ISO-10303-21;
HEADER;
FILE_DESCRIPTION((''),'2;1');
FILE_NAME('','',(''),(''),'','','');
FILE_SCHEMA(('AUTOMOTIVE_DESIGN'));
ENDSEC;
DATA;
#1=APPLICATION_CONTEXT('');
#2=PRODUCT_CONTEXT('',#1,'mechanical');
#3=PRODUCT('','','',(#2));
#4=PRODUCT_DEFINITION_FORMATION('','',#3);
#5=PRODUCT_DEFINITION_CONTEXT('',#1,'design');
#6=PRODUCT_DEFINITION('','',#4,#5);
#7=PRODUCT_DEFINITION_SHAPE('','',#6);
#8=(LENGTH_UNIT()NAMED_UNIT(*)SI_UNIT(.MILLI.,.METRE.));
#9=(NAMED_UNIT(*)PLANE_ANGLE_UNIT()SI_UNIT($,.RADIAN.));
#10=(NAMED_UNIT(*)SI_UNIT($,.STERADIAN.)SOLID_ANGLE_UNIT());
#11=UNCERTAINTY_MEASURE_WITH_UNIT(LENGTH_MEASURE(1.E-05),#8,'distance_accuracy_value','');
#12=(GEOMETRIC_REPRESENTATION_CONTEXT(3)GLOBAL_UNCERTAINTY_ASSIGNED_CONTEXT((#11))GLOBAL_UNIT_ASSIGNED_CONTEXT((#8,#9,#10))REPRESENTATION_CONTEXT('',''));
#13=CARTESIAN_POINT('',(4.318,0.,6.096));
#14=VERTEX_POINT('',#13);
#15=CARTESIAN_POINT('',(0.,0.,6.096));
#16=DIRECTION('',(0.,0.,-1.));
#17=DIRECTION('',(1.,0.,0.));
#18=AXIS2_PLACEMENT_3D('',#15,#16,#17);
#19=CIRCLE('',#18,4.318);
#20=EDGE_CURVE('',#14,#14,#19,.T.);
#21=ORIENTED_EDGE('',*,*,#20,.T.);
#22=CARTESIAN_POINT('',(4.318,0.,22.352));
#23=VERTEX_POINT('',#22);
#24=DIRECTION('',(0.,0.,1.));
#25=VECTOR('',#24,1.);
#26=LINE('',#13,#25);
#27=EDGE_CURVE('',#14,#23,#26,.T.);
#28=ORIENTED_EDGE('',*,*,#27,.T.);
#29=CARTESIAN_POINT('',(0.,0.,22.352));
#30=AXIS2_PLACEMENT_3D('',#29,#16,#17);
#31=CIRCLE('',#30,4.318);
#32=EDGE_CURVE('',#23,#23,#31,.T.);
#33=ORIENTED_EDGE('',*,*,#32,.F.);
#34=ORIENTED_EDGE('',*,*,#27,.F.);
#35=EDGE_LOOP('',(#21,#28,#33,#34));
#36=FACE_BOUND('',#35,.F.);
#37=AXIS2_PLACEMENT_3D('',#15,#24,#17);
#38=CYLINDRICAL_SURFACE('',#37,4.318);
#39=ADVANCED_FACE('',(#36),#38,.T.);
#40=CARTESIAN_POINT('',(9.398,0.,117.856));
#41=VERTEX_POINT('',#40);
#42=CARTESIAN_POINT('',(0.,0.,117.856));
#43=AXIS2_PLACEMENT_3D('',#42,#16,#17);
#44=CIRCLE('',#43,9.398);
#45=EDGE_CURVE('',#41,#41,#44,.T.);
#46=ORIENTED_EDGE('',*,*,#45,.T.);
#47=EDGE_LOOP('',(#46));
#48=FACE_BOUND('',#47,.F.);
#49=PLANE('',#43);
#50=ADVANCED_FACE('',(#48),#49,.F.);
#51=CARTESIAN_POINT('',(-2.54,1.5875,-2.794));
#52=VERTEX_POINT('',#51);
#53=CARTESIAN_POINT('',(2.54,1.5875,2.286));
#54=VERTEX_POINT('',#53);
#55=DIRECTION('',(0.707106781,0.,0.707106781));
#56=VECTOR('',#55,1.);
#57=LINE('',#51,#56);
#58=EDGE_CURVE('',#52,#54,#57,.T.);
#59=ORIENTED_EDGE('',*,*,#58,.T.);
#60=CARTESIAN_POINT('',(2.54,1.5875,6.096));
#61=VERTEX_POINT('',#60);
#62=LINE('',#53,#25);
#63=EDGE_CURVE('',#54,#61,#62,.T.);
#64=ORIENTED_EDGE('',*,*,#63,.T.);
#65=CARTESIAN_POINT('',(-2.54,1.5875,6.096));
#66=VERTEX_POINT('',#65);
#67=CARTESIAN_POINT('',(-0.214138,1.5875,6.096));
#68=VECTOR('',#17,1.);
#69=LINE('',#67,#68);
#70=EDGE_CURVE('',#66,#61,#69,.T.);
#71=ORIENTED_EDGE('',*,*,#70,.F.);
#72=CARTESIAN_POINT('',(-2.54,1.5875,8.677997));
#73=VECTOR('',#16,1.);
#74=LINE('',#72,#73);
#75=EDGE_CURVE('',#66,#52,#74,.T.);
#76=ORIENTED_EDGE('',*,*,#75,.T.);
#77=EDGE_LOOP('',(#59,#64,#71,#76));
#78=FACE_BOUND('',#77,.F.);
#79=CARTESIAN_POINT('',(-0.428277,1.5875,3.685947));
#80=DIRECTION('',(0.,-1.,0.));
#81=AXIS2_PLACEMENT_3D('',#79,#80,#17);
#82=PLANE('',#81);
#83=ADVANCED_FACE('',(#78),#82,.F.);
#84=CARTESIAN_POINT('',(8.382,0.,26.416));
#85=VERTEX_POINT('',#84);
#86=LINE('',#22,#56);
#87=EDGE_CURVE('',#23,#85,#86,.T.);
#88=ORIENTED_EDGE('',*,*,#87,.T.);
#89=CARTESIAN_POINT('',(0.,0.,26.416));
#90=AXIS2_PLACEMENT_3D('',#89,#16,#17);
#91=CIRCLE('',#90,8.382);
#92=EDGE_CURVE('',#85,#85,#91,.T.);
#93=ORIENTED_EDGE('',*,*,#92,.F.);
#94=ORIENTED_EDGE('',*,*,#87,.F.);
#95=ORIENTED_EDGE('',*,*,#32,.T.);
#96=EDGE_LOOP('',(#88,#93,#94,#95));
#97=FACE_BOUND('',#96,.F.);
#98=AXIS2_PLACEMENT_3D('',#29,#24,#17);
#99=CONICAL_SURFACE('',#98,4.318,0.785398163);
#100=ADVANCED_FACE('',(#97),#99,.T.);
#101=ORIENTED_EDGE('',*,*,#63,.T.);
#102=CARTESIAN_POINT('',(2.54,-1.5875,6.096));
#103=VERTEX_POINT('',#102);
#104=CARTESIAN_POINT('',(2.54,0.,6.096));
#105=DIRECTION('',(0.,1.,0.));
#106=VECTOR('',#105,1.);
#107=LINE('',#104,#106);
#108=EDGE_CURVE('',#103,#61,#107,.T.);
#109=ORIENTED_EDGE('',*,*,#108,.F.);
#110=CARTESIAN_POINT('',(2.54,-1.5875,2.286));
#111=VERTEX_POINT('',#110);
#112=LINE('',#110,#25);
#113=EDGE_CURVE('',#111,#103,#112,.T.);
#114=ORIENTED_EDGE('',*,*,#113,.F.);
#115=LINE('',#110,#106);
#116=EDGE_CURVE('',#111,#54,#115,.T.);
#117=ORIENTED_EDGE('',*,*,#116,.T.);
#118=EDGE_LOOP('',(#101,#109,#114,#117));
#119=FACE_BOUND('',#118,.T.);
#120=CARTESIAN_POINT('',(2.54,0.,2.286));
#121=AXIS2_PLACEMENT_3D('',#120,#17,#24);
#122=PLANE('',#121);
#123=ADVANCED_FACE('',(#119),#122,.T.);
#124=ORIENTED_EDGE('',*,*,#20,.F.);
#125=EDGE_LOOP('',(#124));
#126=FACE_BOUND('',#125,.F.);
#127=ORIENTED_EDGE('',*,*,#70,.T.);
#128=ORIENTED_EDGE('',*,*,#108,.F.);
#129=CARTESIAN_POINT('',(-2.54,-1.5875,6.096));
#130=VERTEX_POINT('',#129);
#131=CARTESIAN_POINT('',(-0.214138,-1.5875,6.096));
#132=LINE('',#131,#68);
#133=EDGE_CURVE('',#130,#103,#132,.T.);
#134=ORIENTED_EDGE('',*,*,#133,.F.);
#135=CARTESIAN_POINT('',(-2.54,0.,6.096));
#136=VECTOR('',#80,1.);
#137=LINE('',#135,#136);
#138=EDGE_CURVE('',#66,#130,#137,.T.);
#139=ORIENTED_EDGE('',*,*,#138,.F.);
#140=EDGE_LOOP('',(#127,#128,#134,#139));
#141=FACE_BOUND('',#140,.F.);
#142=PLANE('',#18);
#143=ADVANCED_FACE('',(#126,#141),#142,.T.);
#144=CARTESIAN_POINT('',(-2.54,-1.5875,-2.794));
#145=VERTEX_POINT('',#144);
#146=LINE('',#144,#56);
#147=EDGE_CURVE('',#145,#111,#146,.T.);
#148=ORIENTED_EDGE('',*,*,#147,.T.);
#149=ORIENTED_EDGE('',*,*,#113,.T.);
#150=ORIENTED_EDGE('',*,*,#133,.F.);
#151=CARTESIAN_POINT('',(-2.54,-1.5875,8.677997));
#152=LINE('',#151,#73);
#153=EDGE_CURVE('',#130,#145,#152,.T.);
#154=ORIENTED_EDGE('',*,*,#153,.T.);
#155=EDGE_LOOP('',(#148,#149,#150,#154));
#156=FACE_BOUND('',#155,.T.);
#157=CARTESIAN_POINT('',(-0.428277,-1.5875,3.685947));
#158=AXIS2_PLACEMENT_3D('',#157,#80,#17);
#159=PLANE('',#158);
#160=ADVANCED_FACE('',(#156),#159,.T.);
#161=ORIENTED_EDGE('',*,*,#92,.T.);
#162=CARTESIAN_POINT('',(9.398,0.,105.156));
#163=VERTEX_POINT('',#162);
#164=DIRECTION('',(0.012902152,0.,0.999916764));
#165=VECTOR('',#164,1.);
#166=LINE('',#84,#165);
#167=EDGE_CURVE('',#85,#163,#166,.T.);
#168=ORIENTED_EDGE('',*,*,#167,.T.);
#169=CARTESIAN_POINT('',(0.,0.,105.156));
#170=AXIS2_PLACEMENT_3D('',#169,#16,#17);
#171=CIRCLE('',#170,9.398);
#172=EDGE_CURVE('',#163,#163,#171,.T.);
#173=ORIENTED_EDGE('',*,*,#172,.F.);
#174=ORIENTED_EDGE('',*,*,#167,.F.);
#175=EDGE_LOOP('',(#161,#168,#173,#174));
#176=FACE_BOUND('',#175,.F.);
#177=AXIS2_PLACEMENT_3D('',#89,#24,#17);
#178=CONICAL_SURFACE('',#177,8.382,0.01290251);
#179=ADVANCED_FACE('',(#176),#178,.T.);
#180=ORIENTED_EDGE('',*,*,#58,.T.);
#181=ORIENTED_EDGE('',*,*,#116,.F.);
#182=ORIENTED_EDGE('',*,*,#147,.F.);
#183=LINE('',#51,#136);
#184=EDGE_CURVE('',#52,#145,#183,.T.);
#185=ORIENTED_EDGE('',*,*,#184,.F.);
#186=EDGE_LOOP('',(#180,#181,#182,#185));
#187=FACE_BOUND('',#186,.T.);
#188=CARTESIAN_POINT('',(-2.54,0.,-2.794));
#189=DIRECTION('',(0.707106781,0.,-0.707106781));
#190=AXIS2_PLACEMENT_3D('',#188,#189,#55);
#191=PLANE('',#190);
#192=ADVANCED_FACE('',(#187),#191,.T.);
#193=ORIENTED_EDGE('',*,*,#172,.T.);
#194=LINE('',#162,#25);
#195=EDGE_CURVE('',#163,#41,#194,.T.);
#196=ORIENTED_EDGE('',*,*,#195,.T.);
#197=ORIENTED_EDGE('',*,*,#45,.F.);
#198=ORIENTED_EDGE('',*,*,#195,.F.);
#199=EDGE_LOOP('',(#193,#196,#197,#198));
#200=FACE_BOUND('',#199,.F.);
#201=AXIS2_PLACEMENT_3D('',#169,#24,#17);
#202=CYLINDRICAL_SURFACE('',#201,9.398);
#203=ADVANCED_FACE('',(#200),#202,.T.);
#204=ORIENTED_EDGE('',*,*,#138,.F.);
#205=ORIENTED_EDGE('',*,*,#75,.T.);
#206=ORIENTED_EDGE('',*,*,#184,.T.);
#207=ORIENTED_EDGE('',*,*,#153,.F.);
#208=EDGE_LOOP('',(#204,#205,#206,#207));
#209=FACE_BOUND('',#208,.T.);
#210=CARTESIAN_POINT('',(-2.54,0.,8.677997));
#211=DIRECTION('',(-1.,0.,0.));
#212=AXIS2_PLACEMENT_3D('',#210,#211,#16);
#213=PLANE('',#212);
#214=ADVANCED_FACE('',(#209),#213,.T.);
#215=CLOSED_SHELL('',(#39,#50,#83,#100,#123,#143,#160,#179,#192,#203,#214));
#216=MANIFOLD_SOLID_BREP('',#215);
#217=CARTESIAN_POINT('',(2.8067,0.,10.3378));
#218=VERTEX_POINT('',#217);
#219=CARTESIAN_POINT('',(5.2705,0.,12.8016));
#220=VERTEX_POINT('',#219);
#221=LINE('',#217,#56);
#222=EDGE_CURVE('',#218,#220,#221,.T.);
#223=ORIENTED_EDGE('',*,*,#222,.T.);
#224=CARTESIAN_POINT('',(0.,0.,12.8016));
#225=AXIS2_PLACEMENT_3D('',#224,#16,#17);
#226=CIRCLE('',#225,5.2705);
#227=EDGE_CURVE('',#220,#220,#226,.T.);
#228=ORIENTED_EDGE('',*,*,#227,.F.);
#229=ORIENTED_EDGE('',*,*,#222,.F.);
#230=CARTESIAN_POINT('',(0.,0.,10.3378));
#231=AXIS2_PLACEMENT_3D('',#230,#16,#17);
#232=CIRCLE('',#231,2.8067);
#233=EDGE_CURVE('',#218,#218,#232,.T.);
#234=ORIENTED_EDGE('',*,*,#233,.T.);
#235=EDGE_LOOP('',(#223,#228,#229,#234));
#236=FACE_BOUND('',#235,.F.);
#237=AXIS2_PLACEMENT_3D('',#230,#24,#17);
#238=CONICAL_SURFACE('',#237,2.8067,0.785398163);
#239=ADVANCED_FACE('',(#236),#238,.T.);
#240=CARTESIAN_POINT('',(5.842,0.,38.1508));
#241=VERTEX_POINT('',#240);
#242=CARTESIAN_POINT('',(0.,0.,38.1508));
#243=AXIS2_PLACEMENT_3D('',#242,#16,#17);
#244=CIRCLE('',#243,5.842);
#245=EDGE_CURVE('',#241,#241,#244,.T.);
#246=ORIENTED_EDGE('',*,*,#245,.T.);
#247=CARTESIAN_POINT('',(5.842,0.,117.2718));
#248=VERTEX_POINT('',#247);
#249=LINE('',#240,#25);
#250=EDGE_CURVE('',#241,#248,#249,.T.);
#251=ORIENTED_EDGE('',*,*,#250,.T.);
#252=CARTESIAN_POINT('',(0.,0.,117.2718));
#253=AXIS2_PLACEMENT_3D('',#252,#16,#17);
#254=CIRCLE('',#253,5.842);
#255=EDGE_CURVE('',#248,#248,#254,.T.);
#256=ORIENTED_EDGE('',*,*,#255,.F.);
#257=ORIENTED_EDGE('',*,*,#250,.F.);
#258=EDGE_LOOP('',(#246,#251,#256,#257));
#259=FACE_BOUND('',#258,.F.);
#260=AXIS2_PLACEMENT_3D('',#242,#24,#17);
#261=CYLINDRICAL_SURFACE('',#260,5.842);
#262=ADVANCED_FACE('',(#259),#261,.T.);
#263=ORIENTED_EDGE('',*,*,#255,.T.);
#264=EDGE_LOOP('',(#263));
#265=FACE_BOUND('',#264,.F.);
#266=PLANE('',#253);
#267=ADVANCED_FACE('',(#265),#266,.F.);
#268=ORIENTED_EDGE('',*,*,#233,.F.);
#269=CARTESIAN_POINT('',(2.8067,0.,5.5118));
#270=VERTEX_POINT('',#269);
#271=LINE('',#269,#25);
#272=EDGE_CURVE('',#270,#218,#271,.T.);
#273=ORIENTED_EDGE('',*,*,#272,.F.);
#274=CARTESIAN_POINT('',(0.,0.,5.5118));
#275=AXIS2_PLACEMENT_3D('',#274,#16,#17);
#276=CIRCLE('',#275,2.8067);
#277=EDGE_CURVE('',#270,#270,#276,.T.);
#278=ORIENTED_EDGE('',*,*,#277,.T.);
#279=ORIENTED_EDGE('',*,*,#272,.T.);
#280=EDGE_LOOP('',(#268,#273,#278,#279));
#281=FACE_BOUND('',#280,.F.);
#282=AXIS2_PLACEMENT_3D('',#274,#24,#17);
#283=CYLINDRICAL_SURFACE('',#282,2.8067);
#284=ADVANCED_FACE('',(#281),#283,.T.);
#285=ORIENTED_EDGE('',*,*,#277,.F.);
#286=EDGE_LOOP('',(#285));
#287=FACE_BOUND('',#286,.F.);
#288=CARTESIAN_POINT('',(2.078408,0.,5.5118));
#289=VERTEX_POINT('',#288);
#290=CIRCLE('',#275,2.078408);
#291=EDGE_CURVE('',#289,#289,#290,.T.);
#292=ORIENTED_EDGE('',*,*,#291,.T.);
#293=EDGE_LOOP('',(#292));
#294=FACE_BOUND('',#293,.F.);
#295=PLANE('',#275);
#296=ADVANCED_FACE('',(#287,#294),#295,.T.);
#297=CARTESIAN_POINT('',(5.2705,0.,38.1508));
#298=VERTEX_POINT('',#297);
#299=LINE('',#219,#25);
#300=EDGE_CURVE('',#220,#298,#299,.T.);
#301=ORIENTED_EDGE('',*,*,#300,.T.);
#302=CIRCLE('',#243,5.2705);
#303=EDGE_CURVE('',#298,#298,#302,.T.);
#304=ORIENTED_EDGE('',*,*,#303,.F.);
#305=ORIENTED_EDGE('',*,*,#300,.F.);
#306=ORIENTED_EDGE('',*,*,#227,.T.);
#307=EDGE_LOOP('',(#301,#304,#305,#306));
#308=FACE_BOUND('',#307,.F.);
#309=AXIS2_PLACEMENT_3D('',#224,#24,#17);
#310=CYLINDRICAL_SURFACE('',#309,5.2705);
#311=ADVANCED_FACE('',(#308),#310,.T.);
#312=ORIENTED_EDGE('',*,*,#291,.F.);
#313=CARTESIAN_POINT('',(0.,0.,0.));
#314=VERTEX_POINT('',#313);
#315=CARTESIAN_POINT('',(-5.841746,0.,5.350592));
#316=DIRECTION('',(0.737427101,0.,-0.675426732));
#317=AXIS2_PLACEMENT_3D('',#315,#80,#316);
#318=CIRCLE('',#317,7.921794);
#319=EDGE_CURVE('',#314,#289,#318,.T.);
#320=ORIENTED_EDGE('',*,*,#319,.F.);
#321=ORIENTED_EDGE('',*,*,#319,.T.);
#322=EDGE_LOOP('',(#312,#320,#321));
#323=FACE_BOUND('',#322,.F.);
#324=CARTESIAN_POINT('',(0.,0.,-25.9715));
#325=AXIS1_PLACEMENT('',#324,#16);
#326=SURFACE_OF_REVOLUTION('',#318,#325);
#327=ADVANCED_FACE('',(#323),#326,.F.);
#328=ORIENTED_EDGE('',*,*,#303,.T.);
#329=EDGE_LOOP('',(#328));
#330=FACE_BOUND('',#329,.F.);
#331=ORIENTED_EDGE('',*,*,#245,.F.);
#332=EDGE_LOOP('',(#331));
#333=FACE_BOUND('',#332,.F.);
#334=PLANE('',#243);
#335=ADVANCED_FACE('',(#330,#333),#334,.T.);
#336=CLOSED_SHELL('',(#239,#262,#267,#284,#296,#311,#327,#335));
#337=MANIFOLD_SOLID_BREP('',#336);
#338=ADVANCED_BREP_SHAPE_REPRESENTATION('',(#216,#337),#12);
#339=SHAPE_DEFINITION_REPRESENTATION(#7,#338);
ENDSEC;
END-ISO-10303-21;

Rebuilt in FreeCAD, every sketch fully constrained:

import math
import FreeCAD as App
import Part
import Sketcher
from FreeCAD import Vector
Q = App.Units.Quantity


def add_polygon(sketch, points):
    """Adds a closed chain of lines whose ends are joined by coincident constraints."""
    first, n = sketch.GeometryCount, len(points)
    for a, b in zip(points, points[1:] + points[:1]):
        sketch.addGeometry(Part.LineSegment(App.Vector(*a, 0), App.Vector(*b, 0)), False)
    for i in range(n):
        sketch.addConstraint(Sketcher.Constraint("Coincident", first + i, 2, first + (i + 1) % n, 1))

doc = App.newDocument("Part")
body = doc.addObject("PartDesign::Body", "Body")

# Sketch on XZ plane
sketch1 = doc.addObject("Sketcher::SketchObject", "Sketch")
body.addObject(sketch1)
sketch1.AttachmentSupport = (doc.XZ_Plane, [""])
sketch1.MapMode = "FlatFace"
add_polygon(sketch1, [(0, 117.9), (0, 6.1), (4.3, 6.1), (4.3, 22.4), (8.4, 26.4), (9.4, 105.2), (9.4, 117.9)])  # lines 0-6
sketch1.addConstraint(Sketcher.Constraint("Vertical", 0))
sketch1.addConstraint(Sketcher.Constraint("Horizontal", 1))
sketch1.addConstraint(Sketcher.Constraint("Vertical", 2))
sketch1.addConstraint(Sketcher.Constraint("Vertical", 5))
sketch1.addConstraint(Sketcher.Constraint("Horizontal", 6))
sketch1.addConstraint(Sketcher.Constraint("PointOnObject", 0, 2, -2))
sketch1.addConstraint(Sketcher.Constraint("DistanceY", 0, 2, 0, 1, Q("4.4 in")))
sketch1.addConstraint(Sketcher.Constraint("DistanceY", 5, 1, 5, 2, Q("0.5 in")))
sketch1.addConstraint(Sketcher.Constraint("Angle", 3, Q("45 deg")))
sketch1.addConstraint(Sketcher.Constraint("DistanceX", 1, 1, 1, 2, Q("0.17 in")))
sketch1.addConstraint(Sketcher.Constraint("DistanceX", 6, 2, 6, 1, Q("0.37 in")))
sketch1.addConstraint(Sketcher.Constraint("DistanceY", 2, 1, 2, 2, Q("0.64 in")))
sketch1.addConstraint(Sketcher.Constraint("DistanceY", 1, 2, 3, 2, Q("0.8 in")))
sketch1.addConstraint(Sketcher.Constraint("DistanceY", -1, 1, 0, 2, Q("0.24 in")))
revolution = doc.addObject("PartDesign::Revolution", "Revolution")
body.addObject(revolution)
revolution.Profile = sketch1
revolution.ReferenceAxis = (sketch1, ["V_Axis"])
revolution.Angle = 360

# Sketch on XZ plane
sketch2 = doc.addObject("Sketcher::SketchObject", "Sketch001")
body.addObject(sketch2)
sketch2.AttachmentSupport = (doc.XZ_Plane, [""])
sketch2.MapMode = "FlatFace"
add_polygon(sketch2, [(3, 9), (-3, 9), (-3, -3), (3, 2)])  # lines 0-3
sketch2.addConstraint(Sketcher.Constraint("Horizontal", 0))
sketch2.addConstraint(Sketcher.Constraint("Vertical", 1))
sketch2.addConstraint(Sketcher.Constraint("Vertical", 3))
sketch2.addConstraint(Sketcher.Constraint("DistanceX", 0, 2, 0, 1, Q("0.2 in")))
sketch2.addConstraint(Sketcher.Constraint("Angle", 2, Q("45 deg")))
sketch2.addConstraint(Sketcher.Constraint("DistanceX", 0, 2, -1, 1, Q("0.1 in")))
sketch2.addConstraint(Sketcher.Constraint("DistanceY", 1, 2, -1, 1, Q("0.11 in")))
sketch2.addConstraint(Sketcher.Constraint("DistanceY", 1, 2, 1, 1, Q("11.471997 mm")))
pad1 = doc.addObject("PartDesign::Pad", "Pad")
body.addObject(pad1)
pad1.Profile = sketch2
pad1.Length = Q("0.125 in")
pad1.Midplane = True
body2 = doc.addObject("PartDesign::Body", "Body001")

# Sketch on XZ plane
sketch3 = doc.addObject("Sketcher::SketchObject", "Sketch002")
body2.addObject(sketch3)
sketch3.AttachmentSupport = (doc.getObject("XZ_Plane001"), [""])
sketch3.MapMode = "FlatFace"
sketch3.addGeometry(Part.LineSegment(Vector(0, 117.3, 0), Vector(0, 0, 0)), False)
sketch3.addGeometry(Part.ArcOfCircle(Part.Circle(Vector(-5.8, 5.4, 0), Vector(0, 0, 1), 7.9), math.radians(-42), math.radians(1)), False)
sketch3.addGeometry(Part.LineSegment(Vector(2.1, 5.5, 0), Vector(2.8, 5.5, 0)), False)
sketch3.addGeometry(Part.LineSegment(Vector(2.8, 5.5, 0), Vector(2.8, 10.3, 0)), False)
sketch3.addGeometry(Part.LineSegment(Vector(2.8, 10.3, 0), Vector(5.3, 12.8, 0)), False)
sketch3.addGeometry(Part.LineSegment(Vector(5.3, 12.8, 0), Vector(5.3, 38.2, 0)), False)
sketch3.addGeometry(Part.LineSegment(Vector(5.3, 38.2, 0), Vector(5.8, 38.2, 0)), False)
sketch3.addGeometry(Part.LineSegment(Vector(5.8, 38.2, 0), Vector(5.8, 117.3, 0)), False)
sketch3.addGeometry(Part.LineSegment(Vector(5.8, 117.3, 0), Vector(0, 117.3, 0)), False)
sketch3.addConstraint(Sketcher.Constraint("Coincident", 0, 2, 1, 1))
sketch3.addConstraint(Sketcher.Constraint("Coincident", 1, 2, 2, 1))
sketch3.addConstraint(Sketcher.Constraint("Coincident", 2, 2, 3, 1))
sketch3.addConstraint(Sketcher.Constraint("Coincident", 3, 2, 4, 1))
sketch3.addConstraint(Sketcher.Constraint("Coincident", 4, 2, 5, 1))
sketch3.addConstraint(Sketcher.Constraint("Coincident", 5, 2, 6, 1))
sketch3.addConstraint(Sketcher.Constraint("Coincident", 6, 2, 7, 1))
sketch3.addConstraint(Sketcher.Constraint("Coincident", 7, 2, 8, 1))
sketch3.addConstraint(Sketcher.Constraint("Coincident", 8, 2, 0, 1))
sketch3.addConstraint(Sketcher.Constraint("Vertical", 0))
sketch3.addConstraint(Sketcher.Constraint("Horizontal", 2))
sketch3.addConstraint(Sketcher.Constraint("Vertical", 3))
sketch3.addConstraint(Sketcher.Constraint("Vertical", 5))
sketch3.addConstraint(Sketcher.Constraint("Horizontal", 6))
sketch3.addConstraint(Sketcher.Constraint("Vertical", 7))
sketch3.addConstraint(Sketcher.Constraint("Horizontal", 8))
sketch3.addConstraint(Sketcher.Constraint("Coincident", 0, 2, -1, 1))
sketch3.addConstraint(Sketcher.Constraint("Angle", 4, Q("45 deg")))
sketch3.addConstraint(Sketcher.Constraint("DistanceX", 8, 2, 8, 1, Q("0.23 in")))
sketch3.addConstraint(Sketcher.Constraint("DistanceY", 3, 1, 3, 2, Q("0.19 in")))
sketch3.addConstraint(Sketcher.Constraint("DistanceY", 2, 2, 7, 2, Q("4.4 in")))
sketch3.addConstraint(Sketcher.Constraint("DistanceY", 0, 2, 0, 1, Q("4.617 in")))
sketch3.addConstraint(Sketcher.Constraint("DistanceY", 5, 1, 5, 2, Q("0.998 in")))
sketch3.addConstraint(Sketcher.Constraint("DistanceY", 7, 1, 7, 2, Q("3.115 in")))
sketch3.addConstraint(Sketcher.Constraint("DistanceX", 6, 1, 6, 2, Q("0.0225 in")))
sketch3.addConstraint(Sketcher.Constraint("Radius", 1, Q("7.921794 mm")))
sketch3.addConstraint(Sketcher.Constraint("DistanceX", 2, 1, 2, 2, Q("0.728292 mm")))
revolution2 = doc.addObject("PartDesign::Revolution", "Revolution001")
body2.addObject(revolution2)
revolution2.Profile = sketch3
revolution2.ReferenceAxis = (sketch3, ["V_Axis"])
revolution2.Angle = 360

doc.recompute()
